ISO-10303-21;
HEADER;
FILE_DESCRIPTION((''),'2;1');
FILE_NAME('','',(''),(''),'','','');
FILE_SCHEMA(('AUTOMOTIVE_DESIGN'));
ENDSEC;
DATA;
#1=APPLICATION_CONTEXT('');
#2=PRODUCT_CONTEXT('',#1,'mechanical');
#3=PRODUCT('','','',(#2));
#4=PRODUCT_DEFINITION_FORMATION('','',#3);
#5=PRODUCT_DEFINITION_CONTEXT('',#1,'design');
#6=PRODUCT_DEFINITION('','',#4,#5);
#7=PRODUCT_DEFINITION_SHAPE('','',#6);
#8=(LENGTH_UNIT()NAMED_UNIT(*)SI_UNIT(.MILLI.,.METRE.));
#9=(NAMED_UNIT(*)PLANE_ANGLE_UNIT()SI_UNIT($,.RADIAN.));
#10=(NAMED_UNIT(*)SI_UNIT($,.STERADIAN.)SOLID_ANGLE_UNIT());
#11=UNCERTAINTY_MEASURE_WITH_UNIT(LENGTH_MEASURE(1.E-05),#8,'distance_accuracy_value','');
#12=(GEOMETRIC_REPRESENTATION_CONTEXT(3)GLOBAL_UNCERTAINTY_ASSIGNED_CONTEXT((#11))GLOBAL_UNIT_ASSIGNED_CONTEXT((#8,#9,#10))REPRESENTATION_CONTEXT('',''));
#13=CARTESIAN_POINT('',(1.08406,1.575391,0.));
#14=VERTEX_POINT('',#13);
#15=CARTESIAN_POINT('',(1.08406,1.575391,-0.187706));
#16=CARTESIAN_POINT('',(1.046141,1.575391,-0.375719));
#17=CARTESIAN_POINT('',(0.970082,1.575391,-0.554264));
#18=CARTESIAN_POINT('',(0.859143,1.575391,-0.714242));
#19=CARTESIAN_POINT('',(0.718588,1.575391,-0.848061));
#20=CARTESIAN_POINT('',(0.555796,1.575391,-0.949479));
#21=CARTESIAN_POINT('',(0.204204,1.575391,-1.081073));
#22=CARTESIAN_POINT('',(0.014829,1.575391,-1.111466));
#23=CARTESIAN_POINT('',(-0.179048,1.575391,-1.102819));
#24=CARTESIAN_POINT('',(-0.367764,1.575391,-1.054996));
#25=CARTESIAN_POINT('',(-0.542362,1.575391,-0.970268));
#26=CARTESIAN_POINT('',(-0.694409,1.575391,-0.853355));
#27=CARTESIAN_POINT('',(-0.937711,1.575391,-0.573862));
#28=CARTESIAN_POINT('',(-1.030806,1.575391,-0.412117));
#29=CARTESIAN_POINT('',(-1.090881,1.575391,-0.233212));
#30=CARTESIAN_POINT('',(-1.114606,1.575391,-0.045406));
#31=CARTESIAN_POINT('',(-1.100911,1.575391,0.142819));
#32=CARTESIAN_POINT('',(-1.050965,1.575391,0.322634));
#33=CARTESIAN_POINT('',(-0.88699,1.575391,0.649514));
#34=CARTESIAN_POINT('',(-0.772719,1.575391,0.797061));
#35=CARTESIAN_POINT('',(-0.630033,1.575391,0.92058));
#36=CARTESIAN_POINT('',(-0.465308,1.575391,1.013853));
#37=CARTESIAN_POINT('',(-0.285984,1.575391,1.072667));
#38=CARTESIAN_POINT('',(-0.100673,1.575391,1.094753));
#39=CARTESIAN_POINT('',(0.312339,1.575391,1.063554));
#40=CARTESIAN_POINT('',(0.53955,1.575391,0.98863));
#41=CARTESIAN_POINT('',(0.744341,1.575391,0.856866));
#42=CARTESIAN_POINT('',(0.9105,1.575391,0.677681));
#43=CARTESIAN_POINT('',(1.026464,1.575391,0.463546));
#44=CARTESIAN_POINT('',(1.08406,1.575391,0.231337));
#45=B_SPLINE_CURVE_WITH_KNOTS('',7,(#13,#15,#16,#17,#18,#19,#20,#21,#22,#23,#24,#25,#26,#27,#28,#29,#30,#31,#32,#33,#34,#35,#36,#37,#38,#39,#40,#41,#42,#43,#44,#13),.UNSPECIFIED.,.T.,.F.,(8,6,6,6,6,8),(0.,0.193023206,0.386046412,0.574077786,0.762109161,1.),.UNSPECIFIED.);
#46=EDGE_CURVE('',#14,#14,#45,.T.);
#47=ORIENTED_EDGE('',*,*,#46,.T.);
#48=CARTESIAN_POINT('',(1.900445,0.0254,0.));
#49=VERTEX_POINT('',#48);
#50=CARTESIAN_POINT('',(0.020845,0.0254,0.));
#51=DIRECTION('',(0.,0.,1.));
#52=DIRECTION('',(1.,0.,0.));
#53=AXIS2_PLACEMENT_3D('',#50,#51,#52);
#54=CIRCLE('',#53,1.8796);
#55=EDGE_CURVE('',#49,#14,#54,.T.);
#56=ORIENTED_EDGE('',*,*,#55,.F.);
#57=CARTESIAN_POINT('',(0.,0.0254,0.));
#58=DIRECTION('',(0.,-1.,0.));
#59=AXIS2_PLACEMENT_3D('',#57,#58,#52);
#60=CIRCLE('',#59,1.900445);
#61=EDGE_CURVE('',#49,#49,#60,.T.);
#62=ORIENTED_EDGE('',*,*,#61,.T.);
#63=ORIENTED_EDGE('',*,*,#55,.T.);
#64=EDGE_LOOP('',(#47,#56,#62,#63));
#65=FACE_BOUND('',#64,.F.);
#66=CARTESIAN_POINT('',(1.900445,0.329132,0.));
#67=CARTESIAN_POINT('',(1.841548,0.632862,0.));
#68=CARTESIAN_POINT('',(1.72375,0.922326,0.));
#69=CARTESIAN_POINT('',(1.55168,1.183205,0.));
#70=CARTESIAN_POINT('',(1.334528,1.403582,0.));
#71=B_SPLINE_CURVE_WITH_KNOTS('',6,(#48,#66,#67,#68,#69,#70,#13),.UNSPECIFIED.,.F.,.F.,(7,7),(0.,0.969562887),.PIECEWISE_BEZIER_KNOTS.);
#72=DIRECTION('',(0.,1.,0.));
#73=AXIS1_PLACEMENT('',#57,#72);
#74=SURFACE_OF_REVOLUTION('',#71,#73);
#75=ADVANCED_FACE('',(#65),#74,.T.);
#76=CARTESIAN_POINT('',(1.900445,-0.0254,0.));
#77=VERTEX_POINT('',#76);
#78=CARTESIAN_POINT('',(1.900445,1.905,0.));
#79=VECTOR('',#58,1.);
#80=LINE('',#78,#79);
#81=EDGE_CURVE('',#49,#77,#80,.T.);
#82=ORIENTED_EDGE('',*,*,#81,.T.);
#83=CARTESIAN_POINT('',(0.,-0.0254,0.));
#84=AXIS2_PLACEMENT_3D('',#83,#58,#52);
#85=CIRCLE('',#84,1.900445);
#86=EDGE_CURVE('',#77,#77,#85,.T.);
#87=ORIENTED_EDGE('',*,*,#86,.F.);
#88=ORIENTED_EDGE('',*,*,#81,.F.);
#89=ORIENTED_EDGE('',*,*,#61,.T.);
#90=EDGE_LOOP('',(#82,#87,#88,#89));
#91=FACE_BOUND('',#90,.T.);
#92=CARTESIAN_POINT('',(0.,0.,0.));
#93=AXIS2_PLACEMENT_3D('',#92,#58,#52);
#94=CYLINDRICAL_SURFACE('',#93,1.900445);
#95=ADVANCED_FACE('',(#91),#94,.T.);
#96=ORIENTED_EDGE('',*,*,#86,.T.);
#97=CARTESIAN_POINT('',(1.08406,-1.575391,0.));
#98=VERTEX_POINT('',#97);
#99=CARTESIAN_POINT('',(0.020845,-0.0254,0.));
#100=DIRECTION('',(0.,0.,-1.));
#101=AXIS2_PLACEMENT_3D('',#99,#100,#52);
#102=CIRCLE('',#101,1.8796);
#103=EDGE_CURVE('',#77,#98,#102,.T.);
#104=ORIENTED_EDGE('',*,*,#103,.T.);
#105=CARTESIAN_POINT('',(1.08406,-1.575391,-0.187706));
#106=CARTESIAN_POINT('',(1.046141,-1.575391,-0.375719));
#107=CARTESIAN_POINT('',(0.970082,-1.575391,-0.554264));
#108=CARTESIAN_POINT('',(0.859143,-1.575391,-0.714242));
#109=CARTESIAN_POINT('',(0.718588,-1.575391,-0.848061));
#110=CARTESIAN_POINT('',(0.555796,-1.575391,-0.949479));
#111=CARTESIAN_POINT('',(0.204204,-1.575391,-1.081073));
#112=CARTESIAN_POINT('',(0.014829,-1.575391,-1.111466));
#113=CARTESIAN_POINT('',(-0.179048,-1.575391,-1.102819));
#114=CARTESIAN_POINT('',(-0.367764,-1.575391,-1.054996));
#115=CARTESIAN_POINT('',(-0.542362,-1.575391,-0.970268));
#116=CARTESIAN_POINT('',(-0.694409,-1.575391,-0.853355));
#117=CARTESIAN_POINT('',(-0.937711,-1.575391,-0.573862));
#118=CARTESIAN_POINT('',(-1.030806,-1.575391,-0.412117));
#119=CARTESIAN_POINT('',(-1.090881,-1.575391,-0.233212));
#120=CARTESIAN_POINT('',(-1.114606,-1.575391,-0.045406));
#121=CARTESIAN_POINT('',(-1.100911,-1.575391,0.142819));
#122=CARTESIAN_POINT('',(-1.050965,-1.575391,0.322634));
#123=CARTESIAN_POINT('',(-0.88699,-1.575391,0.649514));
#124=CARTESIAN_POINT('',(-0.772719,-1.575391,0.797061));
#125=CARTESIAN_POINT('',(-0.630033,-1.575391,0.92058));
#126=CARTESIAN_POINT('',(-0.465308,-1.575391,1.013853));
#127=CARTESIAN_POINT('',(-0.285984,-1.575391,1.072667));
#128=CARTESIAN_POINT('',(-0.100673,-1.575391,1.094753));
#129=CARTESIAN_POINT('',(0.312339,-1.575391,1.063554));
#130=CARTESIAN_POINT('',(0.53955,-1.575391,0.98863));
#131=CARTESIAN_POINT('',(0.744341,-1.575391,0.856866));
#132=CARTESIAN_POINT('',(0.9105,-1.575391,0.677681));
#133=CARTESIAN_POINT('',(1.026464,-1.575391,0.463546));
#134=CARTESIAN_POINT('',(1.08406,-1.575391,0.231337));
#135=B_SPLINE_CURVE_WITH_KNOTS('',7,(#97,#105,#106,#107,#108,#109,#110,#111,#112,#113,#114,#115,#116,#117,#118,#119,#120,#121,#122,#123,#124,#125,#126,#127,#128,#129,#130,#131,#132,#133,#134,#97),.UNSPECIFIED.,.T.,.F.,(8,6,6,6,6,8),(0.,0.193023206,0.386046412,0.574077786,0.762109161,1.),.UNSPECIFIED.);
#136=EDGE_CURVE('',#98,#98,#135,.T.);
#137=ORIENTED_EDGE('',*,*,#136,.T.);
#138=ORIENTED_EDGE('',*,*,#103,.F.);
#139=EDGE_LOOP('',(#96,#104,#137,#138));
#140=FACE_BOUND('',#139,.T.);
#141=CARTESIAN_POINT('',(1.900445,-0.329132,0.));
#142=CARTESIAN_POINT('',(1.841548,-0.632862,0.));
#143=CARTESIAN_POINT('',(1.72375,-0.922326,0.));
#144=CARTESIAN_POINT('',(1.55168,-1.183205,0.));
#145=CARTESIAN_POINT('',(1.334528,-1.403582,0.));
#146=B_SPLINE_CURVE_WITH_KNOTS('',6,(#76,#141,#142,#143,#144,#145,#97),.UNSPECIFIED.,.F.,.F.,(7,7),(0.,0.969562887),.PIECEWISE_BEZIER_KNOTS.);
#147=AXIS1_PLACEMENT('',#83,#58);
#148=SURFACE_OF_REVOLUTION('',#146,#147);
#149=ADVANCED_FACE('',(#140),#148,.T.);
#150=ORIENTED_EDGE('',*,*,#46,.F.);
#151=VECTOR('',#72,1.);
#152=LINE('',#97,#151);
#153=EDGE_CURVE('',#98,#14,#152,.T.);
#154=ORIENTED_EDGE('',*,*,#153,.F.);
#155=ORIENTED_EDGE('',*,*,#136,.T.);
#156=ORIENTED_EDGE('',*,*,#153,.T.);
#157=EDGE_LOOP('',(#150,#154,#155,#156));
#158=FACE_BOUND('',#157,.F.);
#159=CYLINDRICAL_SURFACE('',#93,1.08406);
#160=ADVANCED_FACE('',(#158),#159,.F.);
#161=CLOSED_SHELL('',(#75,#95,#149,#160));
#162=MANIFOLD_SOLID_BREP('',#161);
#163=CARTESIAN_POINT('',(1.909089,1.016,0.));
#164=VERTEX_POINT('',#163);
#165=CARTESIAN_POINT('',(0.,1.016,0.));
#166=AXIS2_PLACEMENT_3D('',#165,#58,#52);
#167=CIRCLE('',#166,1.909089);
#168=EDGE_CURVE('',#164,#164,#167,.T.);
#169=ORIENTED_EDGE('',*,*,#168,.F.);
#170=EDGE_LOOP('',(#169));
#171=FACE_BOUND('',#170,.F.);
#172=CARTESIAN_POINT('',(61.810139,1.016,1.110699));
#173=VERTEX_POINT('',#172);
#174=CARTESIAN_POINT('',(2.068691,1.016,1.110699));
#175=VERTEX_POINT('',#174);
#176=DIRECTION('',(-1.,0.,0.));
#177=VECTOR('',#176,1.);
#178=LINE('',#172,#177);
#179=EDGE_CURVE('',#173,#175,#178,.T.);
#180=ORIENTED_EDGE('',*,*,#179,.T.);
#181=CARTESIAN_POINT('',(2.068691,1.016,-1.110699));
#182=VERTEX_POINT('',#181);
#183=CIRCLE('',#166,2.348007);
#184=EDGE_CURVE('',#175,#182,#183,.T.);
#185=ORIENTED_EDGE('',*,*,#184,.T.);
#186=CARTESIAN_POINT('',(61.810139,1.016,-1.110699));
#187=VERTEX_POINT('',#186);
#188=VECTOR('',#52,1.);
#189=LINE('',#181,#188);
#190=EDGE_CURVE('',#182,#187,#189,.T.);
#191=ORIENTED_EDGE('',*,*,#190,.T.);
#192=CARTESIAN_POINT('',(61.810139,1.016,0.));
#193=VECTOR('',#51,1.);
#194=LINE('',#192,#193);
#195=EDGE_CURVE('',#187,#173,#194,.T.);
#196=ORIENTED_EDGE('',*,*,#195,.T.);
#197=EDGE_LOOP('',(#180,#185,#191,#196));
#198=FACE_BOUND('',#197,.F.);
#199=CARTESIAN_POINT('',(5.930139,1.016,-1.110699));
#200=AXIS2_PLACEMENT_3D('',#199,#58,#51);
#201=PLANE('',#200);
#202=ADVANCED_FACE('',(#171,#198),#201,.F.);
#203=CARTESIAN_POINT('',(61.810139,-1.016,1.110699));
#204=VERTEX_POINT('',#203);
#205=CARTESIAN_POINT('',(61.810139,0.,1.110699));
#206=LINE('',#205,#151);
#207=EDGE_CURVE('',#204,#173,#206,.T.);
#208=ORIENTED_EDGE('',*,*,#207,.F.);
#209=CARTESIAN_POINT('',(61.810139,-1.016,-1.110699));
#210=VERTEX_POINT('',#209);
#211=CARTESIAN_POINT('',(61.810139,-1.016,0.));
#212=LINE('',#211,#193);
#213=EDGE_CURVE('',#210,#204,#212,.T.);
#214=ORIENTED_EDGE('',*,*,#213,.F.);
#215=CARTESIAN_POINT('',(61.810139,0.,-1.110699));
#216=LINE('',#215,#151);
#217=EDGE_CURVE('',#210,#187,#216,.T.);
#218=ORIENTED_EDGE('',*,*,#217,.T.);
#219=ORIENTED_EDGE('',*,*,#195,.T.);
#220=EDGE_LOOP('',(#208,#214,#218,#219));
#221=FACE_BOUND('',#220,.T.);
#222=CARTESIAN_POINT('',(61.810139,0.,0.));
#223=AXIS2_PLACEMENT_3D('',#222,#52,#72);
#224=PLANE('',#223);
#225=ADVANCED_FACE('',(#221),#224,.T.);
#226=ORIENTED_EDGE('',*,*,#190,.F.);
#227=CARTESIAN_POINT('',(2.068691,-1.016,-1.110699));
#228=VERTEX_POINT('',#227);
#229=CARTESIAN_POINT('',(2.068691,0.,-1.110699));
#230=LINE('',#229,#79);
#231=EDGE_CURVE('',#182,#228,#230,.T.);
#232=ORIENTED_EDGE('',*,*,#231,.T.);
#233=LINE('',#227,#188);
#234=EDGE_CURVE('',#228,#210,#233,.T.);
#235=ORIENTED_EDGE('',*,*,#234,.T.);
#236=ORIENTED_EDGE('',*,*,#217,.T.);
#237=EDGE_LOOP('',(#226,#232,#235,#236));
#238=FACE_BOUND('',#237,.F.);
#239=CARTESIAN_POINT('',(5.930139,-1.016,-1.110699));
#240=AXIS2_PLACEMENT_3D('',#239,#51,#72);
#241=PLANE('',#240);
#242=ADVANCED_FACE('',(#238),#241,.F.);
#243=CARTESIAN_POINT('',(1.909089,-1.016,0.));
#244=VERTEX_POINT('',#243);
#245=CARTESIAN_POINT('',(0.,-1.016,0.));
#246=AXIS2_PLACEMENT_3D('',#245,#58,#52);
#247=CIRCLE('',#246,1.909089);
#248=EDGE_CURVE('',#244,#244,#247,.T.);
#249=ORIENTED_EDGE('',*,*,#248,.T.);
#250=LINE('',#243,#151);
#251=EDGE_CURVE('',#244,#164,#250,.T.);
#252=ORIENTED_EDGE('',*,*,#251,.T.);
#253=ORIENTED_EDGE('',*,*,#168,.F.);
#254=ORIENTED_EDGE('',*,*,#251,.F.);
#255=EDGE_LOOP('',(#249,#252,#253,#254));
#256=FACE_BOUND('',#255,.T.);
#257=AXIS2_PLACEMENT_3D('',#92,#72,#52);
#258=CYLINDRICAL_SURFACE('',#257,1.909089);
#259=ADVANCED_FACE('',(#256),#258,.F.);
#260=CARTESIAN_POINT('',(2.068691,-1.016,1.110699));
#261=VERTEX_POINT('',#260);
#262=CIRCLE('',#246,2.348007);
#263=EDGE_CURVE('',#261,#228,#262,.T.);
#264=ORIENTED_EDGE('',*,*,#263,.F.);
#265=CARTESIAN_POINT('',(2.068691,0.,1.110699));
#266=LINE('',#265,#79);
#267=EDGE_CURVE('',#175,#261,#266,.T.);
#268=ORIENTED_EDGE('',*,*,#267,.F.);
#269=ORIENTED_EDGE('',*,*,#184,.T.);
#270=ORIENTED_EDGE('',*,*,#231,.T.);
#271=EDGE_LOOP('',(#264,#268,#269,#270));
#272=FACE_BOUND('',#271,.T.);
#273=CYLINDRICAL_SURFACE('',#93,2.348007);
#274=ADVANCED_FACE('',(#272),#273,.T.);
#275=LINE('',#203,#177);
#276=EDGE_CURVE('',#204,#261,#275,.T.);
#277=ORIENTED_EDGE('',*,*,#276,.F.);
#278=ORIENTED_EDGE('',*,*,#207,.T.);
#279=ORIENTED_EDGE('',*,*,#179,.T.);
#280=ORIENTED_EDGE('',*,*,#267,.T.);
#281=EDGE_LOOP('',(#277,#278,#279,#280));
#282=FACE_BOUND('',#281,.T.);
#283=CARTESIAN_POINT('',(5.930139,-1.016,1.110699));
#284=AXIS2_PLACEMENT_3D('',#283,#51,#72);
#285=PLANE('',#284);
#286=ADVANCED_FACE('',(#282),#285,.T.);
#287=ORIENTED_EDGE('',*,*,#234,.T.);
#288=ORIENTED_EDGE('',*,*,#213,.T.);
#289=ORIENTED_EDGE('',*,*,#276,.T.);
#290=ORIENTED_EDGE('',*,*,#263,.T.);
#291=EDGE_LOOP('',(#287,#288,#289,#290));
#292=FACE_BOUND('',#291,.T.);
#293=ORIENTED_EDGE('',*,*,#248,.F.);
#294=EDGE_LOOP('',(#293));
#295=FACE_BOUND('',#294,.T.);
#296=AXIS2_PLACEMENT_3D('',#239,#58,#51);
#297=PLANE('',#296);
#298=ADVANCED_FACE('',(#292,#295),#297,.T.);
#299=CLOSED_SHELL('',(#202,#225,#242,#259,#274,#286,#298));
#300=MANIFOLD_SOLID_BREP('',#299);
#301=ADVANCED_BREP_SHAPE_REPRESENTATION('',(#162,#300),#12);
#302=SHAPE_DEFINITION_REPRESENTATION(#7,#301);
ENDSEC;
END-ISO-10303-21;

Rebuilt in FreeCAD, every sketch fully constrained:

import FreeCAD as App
import Part
import Sketcher

V = App.Vector
Q = App.Units.Quantity


def edges_at(feature, points):
    """Names of the edges that pass closest to the given points."""
    edges = feature.Shape.Edges
    near = lambda p: min(range(len(edges)), key=lambda i: edges[i].distToShape(Part.Vertex(*p))[0])
    return sorted({f"Edge{near(p) + 1}" for p in points})


def add_polygon(sketch, points):
    """Adds a closed chain of lines whose ends are joined by coincident constraints."""
    first, n = sketch.GeometryCount, len(points)
    for a, b in zip(points, points[1:] + points[:1]):
        sketch.addGeometry(Part.LineSegment(App.Vector(*a, 0), App.Vector(*b, 0)), False)
    for i in range(n):
        sketch.addConstraint(Sketcher.Constraint("Coincident", first + i, 2, first + (i + 1) % n, 1))

doc = App.newDocument("Part")
body = doc.addObject("PartDesign::Body", "Body")

# Sketch on XZ plane
sketch1 = body.newObject("Sketcher::SketchObject", "Sketch")
sketch1.AttachmentSupport = (doc.getObject("XZ_Plane"), [""])
sketch1.MapMode = "FlatFace"
sketch1.addGeometry(Part.Circle(V(0, 0, 0), V(0, 0, 1), 1.9), False)
sketch1.addConstraint([
    Sketcher.Constraint("Coincident", 0, 3, -1, 1),
    Sketcher.Constraint("Diameter", 0, 3.80089),
])
pad1 = body.newObject("PartDesign::Pad", "Pad")
pad1.Profile = sketch1
pad1.Type = "TwoLengths"
pad1.Length = Q("0.075 in")
pad1.Length2 = Q("0.075 in")
doc.recompute()

fillet = body.newObject("PartDesign::Fillet", "Fillet")
fillet.Base = (pad1, edges_at(pad1, [(-1.9, -1.905, 0), (-1.9, 1.905, 0)]))
fillet.Radius = Q("0.074 in")

# Sketch on XZ plane
sketch2 = body.newObject("Sketcher::SketchObject", "Sketch001")
sketch2.AttachmentSupport = (doc.getObject("XZ_Plane"), [""])
sketch2.MapMode = "FlatFace"
sketch2.addGeometry(Part.Circle(V(0, 0, 0), V(0, 0, 1), 1.1), False)
sketch2.addConstraint([
    Sketcher.Constraint("Coincident", 0, 3, -1, 1),
    Sketcher.Constraint("Diameter", 0, 2.168119),
])
pocket1 = body.newObject("PartDesign::Pocket", "Pocket")
pocket1.Profile = sketch2
pocket1.Type = "ThroughAll"
pocket1.Midplane = True
body2 = doc.addObject("PartDesign::Body", "Body001")

# Sketch on XZ plane
sketch3 = body2.newObject("Sketcher::SketchObject", "Sketch002")
sketch3.AttachmentSupport = (doc.getObject("XZ_Plane001"), [""])
sketch3.MapMode = "FlatFace"
sketch3.addGeometry([
    Part.Circle(V(0, 0, 0), V(0, 0, 1), 2.3),
    Part.Circle(V(0, 0, 0), V(0, 0, 1), 1.9),
], False)
sketch3.addConstraint([
    Sketcher.Constraint("Coincident", 0, 3, -1, 1),
    Sketcher.Constraint("Coincident", 1, 3, -1, 1),
    Sketcher.Constraint("Diameter", 1, 3.818179),
    Sketcher.Constraint("Diameter", 0, 4.696014),
])
pad2 = body2.newObject("PartDesign::Pad", "Pad001")
pad2.Profile = sketch3
pad2.Type = "TwoLengths"
pad2.Length = Q("0.04 in")
pad2.Length2 = Q("0.04 in")

# Sketch on XZ plane
sketch4 = body2.newObject("Sketcher::SketchObject", "Sketch003")
sketch4.AttachmentSupport = (doc.getObject("XZ_Plane001"), [""])
sketch4.MapMode = "FlatFace"
sketch4.AttachmentOffset = App.Placement(V(0, 0, 0.04 * 25.4), App.Rotation())
add_polygon(sketch4, [(5.9, -1.1), (5.9, 1.1), (2, 1.1), (2, -1.1)])  # lines 0-3
sketch4.addConstraint([
    Sketcher.Constraint("Vertical", 0),
    Sketcher.Constraint("Horizontal", 1),
    Sketcher.Constraint("Vertical", 2),
    Sketcher.Constraint("Horizontal", 3),
    Sketcher.Constraint("DistanceY", 0, 1, 0, 2, 2.221399),
    Sketcher.Constraint("DistanceY", -1, 1, 0, 2, 1.110699),
    Sketcher.Constraint("DistanceX", 1, 2, 1, 1, 3.918142),
    Sketcher.Constraint("DistanceX", -1, 1, 0, 2, 5.930139),
])
pad3 = body2.newObject("PartDesign::Pad", "Pad002")
pad3.Profile = sketch4
pad3.Length = Q("0.08 in")
pad3.Reversed = True

# Sketch on YZ plane
sketch5 = body2.newObject("Sketcher::SketchObject", "Sketch004")
sketch5.AttachmentSupport = (doc.getObject("YZ_Plane001"), [""])
sketch5.MapMode = "FlatFace"
sketch5.AttachmentOffset = App.Placement(V(0, 0, 5.930139), App.Rotation())
add_polygon(sketch5, [(-1, 1.1), (-1, -1.1), (1, -1.1), (1, 1.1)])  # lines 0-3
sketch5.addConstraint([
    Sketcher.Constraint("Vertical", 0),
    Sketcher.Constraint("Horizontal", 1),
    Sketcher.Constraint("Vertical", 2),
    Sketcher.Constraint("Horizontal", 3),
    Sketcher.Constraint("Symmetric", 0, 2, 2, 2, -1, 1),
    Sketcher.Constraint("DistanceX", 1, 1, 1, 2, Q("0.08 in")),
    Sketcher.Constraint("DistanceY", 0, 2, 0, 1, 2.221399),
])
pad4 = body2.newObject("PartDesign::Pad", "Pad003")
pad4.Profile = sketch5
pad4.Length = Q("2.2 in")

doc.recompute()
